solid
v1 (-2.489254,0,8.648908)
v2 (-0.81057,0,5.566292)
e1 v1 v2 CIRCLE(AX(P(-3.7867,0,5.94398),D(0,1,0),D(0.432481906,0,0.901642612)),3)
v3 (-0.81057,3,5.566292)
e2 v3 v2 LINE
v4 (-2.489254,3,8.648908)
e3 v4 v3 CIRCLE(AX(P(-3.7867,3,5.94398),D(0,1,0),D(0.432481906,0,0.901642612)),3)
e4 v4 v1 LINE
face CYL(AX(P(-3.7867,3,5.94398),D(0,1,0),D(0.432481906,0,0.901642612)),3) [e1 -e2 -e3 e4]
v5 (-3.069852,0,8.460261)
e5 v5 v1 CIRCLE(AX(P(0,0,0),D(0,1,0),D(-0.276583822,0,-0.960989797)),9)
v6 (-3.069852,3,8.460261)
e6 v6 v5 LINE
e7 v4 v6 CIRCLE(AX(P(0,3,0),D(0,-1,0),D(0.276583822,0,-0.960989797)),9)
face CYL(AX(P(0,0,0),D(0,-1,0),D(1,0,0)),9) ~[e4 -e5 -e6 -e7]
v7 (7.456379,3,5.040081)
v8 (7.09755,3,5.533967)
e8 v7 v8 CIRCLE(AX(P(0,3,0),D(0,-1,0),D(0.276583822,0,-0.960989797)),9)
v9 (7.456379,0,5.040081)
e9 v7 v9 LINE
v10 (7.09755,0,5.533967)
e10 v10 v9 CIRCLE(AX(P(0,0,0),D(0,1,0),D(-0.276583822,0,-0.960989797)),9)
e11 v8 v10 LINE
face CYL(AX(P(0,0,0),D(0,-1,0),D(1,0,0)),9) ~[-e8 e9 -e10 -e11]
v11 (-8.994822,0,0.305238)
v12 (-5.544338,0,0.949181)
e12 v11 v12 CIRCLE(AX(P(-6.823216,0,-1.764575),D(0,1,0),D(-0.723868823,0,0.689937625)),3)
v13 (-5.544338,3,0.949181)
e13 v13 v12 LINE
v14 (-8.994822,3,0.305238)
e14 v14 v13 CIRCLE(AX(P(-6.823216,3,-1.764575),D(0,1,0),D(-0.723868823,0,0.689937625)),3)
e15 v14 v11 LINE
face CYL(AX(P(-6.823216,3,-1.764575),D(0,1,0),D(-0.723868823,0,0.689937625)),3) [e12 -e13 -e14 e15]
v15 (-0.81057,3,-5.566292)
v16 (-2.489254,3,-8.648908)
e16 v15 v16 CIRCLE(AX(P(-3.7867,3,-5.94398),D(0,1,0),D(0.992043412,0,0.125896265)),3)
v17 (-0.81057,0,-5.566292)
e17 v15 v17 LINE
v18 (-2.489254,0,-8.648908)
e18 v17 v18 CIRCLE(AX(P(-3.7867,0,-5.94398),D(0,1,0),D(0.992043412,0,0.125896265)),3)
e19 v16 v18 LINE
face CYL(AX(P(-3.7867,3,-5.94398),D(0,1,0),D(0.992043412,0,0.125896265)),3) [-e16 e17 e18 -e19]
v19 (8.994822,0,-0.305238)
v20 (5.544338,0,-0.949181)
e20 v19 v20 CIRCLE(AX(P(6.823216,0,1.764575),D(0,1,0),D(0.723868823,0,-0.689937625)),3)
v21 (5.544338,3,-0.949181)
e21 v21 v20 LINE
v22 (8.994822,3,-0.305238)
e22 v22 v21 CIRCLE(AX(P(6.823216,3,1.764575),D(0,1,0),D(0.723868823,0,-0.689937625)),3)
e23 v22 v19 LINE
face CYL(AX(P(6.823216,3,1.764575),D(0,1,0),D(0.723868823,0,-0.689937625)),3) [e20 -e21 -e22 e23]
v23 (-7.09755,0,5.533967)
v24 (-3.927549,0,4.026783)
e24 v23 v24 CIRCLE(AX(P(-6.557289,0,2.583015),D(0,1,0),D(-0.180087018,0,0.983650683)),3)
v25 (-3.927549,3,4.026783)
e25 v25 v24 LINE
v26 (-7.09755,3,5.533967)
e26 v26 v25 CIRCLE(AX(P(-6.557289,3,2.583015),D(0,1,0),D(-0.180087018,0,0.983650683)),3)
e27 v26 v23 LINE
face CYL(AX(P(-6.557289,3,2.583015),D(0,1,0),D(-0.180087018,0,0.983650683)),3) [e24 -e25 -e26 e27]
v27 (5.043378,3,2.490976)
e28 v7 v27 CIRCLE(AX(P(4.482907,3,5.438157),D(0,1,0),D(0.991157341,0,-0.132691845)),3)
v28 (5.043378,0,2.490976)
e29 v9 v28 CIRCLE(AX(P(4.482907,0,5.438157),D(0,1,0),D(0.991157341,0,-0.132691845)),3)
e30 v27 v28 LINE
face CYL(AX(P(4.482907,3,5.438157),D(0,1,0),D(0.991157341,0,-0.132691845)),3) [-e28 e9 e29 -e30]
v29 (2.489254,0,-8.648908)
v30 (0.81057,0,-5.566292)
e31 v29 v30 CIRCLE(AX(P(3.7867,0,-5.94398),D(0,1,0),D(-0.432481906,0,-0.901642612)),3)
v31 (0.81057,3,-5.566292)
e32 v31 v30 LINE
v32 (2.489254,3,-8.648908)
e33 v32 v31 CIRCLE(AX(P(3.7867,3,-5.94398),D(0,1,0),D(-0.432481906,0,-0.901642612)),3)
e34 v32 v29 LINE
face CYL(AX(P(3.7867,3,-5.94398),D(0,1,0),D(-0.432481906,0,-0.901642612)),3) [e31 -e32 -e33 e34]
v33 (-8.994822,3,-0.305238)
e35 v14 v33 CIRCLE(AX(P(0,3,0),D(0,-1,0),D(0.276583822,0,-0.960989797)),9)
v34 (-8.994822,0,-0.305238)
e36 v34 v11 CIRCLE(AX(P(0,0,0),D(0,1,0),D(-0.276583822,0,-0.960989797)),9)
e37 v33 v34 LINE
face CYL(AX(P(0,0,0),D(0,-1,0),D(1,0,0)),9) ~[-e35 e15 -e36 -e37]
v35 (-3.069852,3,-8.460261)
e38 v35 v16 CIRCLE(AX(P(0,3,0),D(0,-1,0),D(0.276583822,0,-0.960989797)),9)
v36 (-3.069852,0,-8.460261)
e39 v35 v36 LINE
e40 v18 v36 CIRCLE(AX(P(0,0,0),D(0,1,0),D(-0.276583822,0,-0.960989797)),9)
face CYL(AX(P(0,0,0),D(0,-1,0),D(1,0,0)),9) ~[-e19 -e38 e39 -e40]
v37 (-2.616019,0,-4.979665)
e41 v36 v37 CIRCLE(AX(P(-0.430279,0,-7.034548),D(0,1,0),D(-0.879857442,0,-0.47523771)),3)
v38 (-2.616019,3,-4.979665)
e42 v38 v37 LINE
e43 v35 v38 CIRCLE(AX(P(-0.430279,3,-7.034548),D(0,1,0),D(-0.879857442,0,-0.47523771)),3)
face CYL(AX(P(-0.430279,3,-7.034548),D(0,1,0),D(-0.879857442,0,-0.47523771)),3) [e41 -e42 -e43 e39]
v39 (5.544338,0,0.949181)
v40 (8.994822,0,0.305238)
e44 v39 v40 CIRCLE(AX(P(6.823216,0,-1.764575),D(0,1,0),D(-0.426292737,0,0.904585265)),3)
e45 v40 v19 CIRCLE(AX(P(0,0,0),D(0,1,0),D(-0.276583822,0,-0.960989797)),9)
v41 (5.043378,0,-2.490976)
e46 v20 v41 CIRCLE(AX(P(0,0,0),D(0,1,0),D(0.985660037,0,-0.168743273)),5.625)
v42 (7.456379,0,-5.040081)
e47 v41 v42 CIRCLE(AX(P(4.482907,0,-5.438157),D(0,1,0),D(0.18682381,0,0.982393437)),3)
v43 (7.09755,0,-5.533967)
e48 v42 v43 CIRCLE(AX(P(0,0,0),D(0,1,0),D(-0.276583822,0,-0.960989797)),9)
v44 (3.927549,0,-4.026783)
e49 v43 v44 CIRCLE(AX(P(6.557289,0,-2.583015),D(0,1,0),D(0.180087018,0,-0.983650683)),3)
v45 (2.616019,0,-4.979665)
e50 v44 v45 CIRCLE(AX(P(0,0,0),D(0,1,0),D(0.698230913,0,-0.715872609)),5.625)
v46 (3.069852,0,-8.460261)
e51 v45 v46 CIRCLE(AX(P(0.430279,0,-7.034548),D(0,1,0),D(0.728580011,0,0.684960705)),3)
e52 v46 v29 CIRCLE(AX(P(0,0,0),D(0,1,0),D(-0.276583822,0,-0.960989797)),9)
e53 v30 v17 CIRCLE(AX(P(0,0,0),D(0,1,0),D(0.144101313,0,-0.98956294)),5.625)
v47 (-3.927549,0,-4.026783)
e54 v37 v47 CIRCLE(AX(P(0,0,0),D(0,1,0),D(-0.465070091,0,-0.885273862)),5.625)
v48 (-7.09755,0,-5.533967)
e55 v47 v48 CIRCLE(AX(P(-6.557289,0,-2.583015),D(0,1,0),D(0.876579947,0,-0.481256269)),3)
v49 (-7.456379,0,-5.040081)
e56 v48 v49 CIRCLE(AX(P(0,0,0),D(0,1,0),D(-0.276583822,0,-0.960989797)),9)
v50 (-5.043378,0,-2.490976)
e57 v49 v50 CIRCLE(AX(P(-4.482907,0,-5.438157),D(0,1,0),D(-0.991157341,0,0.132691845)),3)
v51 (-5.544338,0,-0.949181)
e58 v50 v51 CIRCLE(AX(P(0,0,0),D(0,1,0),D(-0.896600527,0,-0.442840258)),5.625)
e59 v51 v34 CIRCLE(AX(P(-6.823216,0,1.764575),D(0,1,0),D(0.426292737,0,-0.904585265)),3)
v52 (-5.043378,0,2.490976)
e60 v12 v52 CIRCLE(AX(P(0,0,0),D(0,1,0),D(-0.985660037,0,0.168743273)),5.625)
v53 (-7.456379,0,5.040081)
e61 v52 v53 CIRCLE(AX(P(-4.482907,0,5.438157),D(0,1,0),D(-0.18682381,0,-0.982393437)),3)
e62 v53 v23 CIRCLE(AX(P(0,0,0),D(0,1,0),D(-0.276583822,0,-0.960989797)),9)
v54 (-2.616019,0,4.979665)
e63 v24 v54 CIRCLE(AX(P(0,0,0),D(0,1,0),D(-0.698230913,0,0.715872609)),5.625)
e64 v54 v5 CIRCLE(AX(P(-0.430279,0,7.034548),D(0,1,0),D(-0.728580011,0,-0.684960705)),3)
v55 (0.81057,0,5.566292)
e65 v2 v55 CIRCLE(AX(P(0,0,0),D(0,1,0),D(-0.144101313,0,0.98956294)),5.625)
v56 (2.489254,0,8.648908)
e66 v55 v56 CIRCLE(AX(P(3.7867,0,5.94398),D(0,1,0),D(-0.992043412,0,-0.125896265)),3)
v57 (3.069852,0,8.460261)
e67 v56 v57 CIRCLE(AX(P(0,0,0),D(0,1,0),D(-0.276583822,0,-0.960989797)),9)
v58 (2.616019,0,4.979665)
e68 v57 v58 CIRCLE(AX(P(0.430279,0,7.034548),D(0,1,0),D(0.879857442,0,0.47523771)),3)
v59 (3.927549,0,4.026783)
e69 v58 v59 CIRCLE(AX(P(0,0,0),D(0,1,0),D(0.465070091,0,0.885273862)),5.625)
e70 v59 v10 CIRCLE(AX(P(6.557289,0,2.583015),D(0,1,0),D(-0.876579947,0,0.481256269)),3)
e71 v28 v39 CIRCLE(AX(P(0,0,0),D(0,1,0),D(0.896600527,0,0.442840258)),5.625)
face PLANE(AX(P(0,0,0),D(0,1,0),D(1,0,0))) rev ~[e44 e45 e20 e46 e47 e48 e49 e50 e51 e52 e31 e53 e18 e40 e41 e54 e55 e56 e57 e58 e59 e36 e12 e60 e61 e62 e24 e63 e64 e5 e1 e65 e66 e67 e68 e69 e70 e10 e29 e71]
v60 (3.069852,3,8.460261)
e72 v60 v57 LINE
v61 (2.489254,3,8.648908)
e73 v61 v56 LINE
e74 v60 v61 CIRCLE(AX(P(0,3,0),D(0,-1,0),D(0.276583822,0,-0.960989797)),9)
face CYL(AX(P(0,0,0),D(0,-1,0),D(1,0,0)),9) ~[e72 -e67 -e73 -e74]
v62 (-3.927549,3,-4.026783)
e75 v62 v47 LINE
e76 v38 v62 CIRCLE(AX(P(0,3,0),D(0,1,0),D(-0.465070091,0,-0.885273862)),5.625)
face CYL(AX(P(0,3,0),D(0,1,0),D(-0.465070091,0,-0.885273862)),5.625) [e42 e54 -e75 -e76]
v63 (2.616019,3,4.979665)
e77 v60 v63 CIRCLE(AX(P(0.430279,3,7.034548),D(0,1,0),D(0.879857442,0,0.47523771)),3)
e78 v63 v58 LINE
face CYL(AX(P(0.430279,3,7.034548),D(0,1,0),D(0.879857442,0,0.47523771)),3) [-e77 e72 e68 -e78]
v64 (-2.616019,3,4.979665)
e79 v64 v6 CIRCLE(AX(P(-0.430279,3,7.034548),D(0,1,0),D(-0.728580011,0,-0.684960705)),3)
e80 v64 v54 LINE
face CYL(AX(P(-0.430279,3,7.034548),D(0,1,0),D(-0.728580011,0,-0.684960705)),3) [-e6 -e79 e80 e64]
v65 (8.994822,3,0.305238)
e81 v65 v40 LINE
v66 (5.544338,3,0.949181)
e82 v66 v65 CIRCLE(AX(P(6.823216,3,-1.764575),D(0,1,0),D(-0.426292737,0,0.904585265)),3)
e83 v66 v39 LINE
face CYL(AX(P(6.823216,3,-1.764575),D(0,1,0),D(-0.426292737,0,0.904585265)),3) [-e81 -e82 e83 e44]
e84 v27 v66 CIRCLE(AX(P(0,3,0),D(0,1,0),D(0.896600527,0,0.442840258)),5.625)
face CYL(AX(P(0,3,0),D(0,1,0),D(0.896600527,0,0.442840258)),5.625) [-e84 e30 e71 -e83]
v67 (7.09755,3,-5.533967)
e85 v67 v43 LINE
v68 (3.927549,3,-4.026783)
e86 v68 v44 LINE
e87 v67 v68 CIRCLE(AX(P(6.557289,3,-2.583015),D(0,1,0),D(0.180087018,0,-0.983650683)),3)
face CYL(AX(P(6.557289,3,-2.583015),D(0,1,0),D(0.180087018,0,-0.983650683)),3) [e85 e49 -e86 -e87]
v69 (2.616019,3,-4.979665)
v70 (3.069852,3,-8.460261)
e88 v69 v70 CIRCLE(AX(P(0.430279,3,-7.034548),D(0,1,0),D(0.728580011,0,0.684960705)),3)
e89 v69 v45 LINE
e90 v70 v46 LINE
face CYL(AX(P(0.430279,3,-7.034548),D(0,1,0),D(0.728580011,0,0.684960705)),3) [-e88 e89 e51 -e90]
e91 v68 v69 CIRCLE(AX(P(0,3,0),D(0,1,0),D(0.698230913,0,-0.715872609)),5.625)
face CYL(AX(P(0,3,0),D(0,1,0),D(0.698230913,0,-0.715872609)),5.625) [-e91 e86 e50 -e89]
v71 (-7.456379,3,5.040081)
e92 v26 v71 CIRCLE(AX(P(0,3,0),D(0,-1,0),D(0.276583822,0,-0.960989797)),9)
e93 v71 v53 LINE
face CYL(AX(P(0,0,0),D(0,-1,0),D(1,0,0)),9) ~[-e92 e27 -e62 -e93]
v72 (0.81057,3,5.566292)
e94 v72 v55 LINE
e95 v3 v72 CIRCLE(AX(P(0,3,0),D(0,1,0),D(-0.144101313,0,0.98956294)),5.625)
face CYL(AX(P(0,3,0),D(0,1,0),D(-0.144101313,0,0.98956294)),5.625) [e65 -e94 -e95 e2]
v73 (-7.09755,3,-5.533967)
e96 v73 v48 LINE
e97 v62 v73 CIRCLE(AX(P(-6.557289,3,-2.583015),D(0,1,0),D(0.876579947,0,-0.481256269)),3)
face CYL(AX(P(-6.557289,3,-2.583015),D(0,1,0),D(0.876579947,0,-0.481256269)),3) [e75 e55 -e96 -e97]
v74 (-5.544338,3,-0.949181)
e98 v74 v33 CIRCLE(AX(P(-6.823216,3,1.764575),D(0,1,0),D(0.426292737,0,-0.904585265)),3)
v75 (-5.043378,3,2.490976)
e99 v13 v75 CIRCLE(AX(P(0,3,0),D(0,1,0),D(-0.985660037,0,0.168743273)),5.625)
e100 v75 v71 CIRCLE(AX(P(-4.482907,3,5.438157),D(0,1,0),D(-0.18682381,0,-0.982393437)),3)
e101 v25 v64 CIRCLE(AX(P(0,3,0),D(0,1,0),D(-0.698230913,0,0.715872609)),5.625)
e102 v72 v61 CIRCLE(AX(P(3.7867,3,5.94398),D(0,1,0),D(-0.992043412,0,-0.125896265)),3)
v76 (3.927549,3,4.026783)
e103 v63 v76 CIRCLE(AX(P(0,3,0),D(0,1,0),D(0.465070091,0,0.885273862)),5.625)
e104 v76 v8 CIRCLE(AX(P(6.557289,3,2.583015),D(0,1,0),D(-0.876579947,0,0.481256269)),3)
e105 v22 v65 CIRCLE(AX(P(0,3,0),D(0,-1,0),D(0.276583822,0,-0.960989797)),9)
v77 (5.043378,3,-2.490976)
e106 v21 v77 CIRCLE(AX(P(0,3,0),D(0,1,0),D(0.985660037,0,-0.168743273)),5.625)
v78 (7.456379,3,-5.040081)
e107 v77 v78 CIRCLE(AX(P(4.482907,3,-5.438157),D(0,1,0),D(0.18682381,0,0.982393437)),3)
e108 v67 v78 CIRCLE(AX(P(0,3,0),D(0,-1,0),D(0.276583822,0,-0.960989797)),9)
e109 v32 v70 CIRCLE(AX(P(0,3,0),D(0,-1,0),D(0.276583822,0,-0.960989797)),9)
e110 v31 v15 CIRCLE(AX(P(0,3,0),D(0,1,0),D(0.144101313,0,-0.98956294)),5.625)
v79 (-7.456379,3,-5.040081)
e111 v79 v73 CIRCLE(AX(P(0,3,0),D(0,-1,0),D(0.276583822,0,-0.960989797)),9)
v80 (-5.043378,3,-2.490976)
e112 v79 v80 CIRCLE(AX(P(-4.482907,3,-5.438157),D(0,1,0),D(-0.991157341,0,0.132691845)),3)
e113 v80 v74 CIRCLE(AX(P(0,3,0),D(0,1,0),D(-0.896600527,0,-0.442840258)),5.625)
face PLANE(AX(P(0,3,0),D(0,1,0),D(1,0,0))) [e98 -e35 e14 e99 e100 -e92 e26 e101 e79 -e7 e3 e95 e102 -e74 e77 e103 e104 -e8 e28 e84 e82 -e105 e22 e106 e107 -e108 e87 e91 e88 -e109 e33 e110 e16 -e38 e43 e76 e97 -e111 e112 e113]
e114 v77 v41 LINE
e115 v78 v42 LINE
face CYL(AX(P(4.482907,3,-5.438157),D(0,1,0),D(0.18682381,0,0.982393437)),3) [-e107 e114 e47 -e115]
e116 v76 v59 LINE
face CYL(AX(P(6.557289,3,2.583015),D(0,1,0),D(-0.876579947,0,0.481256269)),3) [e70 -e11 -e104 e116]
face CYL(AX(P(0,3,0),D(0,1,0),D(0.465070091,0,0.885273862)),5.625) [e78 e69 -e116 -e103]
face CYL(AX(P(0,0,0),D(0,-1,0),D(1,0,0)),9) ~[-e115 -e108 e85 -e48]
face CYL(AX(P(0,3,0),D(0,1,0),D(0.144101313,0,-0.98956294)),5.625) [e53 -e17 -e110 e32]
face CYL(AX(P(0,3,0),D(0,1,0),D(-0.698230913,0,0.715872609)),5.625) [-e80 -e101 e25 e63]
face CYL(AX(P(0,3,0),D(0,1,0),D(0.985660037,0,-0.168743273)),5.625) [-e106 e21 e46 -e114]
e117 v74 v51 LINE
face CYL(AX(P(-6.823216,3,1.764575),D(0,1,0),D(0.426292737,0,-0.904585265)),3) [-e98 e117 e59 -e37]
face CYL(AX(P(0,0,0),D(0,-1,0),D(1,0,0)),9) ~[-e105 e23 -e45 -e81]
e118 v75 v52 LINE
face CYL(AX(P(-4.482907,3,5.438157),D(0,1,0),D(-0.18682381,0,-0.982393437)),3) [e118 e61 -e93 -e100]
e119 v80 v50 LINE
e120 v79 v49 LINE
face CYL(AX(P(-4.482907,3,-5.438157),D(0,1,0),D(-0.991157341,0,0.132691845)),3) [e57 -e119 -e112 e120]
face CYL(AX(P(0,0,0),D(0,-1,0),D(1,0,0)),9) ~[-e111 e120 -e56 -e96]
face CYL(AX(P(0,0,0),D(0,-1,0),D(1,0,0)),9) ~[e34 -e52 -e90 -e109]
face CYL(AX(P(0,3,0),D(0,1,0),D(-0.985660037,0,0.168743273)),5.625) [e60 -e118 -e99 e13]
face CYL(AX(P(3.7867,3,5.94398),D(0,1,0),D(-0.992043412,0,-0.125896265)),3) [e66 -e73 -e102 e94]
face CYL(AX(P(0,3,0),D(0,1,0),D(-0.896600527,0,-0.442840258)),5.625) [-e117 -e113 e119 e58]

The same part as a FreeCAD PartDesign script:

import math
import FreeCAD as App
import Part
import Sketcher

doc = App.newDocument("Part")
body = doc.addObject("PartDesign::Body", "Body")

sketch1 = body.newObject("Sketcher::SketchObject", "Sketch")
sketch1.AttachmentSupport = (doc.getObject("XZ_Plane"), [""])
sketch1.MapMode = "FlatFace"
sketch1.addGeometry(Part.Circle(App.Vector(0, 0, 0), App.Vector(0, 0, 1), 9), False)
sketch1.addConstraint([
    Sketcher.Constraint("Coincident", 0, 3, -1, 1),
    Sketcher.Constraint("Diameter", 0, 18.0),
])
pad1 = body.newObject("PartDesign::Pad", "Pad")
pad1.Profile = sketch1
pad1.Length = 3
pad1.Reversed = True

sketch2 = body.newObject("Sketcher::SketchObject", "Sketch001")
sketch2.AttachmentSupport = (doc.getObject("XZ_Plane"), [""])
sketch2.MapMode = "FlatFace"
sketch2.AttachmentOffset = App.Placement(App.Vector(0, 0, -3), App.Rotation())
sketch2.addGeometry([
    Part.ArcOfCircle(Part.Circle(App.Vector(0, 0, 0), App.Vector(0, 0, 1), 9), math.radians(-106), math.radians(-74)),
    Part.ArcOfCircle(Part.Circle(App.Vector(-3.8, -5.9, 0), App.Vector(0, 0, 1), 3), math.radians(-64), math.radians(7)),
    Part.ArcOfCircle(Part.Circle(App.Vector(0, 0, 0), App.Vector(0, 0, 1), 5.6), math.radians(-98.29), math.radians(-81.71)),
    Part.ArcOfCircle(Part.Circle(App.Vector(3.8, -5.9, 0), App.Vector(0, 0, 1), 3), math.radians(173), math.radians(244)),
], False)
sketch2.addConstraint([
    Sketcher.Constraint("Coincident", 0, 1, 1, 1),
    Sketcher.Constraint("Coincident", 1, 2, 2, 1),
    Sketcher.Constraint("Coincident", 2, 2, 3, 1),
    Sketcher.Constraint("Coincident", 3, 2, 0, 2),
    Sketcher.Constraint("Coincident", 0, 3, -1, 1),
    Sketcher.Constraint("Coincident", 2, 3, -1, 1),
    Sketcher.Constraint("Equal", 1, 3),
    Sketcher.Constraint("Symmetric", 1, 3, 3, 3, -2),
    Sketcher.Constraint("Radius", 0, 9.0),
    Sketcher.Constraint("Radius", 1, 3.0),
    Sketcher.Constraint("Radius", 2, 5.625),
    Sketcher.Constraint("DistanceX", 1, 3, -1, 1, 3.7867),
    Sketcher.Constraint("DistanceY", 1, 3, -1, 1, 5.94398),
])
pocket1 = body.newObject("PartDesign::Pocket", "Pocket")
pocket1.Profile = sketch2
pocket1.Type = "ThroughAll"
pocket1.Reversed = True
doc.recompute()

polarpattern = body.newObject("PartDesign::PolarPattern", "PolarPattern")
polarpattern.Originals = [pocket1]
polarpattern.Axis = (doc.getObject("Y_Axis"), [""])
polarpattern.Angle = 360
polarpattern.Occurrences = 10
body.Tip = polarpattern

doc.recompute()
